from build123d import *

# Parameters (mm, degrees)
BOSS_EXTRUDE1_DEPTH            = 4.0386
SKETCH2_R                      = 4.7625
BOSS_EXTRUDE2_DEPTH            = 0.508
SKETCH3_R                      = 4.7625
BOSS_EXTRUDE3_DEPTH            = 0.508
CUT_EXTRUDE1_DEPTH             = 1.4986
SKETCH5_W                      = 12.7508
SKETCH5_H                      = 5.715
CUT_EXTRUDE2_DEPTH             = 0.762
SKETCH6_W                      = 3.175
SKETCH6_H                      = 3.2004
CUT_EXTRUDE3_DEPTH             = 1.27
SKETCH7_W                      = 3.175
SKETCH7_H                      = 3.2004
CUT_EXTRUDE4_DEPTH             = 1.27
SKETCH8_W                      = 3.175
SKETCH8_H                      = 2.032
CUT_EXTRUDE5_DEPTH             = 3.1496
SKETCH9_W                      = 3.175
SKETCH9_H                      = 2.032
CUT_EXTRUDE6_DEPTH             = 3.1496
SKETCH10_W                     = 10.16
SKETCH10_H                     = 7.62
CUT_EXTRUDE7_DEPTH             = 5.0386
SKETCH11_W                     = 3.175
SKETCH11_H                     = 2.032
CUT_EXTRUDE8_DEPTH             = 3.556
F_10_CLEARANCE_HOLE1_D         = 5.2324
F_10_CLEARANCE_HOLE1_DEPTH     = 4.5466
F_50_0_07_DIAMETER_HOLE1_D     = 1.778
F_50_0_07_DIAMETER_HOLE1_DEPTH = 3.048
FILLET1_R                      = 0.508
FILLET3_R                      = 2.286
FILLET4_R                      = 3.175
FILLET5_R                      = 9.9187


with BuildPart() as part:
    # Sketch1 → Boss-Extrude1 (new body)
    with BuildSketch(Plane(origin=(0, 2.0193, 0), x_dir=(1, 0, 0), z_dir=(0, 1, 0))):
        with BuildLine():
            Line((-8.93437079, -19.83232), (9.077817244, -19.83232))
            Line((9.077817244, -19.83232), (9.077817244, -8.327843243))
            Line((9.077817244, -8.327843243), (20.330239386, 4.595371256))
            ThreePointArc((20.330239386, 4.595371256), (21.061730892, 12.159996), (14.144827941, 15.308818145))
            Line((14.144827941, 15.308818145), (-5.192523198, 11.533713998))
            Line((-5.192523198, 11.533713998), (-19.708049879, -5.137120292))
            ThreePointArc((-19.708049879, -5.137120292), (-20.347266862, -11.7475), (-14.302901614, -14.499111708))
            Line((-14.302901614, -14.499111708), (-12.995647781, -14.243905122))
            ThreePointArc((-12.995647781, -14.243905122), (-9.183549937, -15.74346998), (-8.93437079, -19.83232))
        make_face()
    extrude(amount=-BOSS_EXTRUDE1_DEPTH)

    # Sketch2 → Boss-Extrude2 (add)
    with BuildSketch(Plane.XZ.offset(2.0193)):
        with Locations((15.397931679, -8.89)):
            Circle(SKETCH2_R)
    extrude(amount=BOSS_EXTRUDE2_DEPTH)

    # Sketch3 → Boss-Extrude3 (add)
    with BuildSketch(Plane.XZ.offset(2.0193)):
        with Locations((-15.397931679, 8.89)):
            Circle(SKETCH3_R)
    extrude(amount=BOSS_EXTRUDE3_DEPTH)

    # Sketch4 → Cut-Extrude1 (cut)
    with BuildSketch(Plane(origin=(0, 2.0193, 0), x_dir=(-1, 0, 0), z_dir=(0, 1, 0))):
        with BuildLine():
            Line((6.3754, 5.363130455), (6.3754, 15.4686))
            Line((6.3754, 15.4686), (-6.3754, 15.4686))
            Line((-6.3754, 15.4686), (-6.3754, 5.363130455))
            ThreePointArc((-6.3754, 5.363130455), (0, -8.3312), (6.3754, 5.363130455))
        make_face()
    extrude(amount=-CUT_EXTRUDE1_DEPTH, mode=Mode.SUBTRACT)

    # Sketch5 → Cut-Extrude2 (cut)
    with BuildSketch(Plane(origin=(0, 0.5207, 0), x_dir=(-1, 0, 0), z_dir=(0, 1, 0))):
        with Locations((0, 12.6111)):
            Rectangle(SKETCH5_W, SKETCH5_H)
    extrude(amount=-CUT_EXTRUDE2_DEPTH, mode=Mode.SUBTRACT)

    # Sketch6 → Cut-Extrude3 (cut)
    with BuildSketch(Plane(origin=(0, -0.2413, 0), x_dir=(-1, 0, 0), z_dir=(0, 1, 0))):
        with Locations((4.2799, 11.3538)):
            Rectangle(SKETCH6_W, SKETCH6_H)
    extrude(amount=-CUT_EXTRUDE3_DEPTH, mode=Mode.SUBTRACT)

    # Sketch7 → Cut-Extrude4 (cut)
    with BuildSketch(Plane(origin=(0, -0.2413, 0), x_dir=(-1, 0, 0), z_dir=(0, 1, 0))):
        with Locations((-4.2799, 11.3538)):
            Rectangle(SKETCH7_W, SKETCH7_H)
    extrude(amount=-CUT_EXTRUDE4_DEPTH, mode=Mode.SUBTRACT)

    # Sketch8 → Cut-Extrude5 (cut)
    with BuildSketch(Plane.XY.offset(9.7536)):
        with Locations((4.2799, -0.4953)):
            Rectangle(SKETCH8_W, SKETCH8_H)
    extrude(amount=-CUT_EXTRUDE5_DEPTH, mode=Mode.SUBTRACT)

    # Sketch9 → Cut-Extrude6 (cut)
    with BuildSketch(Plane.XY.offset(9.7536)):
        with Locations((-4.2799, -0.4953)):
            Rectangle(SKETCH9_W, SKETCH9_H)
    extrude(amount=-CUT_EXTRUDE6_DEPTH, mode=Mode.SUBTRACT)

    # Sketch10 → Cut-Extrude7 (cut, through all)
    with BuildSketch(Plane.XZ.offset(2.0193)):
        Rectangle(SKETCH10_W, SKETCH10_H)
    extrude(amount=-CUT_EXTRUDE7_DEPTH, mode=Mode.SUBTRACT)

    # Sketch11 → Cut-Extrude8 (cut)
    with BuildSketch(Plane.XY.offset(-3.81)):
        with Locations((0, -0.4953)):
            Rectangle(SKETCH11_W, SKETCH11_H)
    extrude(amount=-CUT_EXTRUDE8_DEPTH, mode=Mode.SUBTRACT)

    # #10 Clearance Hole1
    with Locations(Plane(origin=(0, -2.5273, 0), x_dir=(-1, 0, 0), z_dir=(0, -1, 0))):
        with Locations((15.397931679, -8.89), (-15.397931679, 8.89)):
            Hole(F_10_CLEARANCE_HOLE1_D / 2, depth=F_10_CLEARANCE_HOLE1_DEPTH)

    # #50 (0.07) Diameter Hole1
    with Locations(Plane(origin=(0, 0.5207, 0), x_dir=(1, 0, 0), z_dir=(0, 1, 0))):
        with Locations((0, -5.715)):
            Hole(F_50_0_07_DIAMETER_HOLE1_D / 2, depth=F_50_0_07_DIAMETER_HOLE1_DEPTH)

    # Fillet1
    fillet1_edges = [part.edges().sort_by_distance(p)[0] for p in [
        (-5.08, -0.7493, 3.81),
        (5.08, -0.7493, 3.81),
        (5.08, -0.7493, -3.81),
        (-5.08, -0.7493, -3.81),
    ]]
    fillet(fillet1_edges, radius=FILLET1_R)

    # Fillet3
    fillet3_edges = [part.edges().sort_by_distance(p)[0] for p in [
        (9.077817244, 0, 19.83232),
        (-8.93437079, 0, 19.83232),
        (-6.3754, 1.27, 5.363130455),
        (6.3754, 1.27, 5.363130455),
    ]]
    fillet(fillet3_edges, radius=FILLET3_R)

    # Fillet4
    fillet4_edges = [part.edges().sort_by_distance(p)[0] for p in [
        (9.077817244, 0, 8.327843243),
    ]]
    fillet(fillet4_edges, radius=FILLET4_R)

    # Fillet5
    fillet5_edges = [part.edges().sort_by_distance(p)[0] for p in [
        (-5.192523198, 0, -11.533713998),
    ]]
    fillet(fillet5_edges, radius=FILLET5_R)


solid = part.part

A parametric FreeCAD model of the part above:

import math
import FreeCAD as App
import Part
import Sketcher
Q = App.Units.Quantity


def edges_at(feature, points):
    """Names of the edges that pass closest to the given points."""
    edges = feature.Shape.Edges
    near = lambda p: min(range(len(edges)), key=lambda i: edges[i].distToShape(Part.Vertex(*p))[0])
    return sorted({f"Edge{near(p) + 1}" for p in points})


def add_polygon(sketch, points):
    """Adds a closed chain of lines whose ends are joined by coincident constraints."""
    first, n = sketch.GeometryCount, len(points)
    for a, b in zip(points, points[1:] + points[:1]):
        sketch.addGeometry(Part.LineSegment(App.Vector(*a, 0), App.Vector(*b, 0)), False)
    for i in range(n):
        sketch.addConstraint(Sketcher.Constraint("Coincident", first + i, 2, first + (i + 1) % n, 1))

doc = App.newDocument("Part")
body = doc.addObject("PartDesign::Body", "Body")

sketch1 = doc.addObject("Sketcher::SketchObject", "Sketch")
body.addObject(sketch1)
sketch1.AttachmentSupport = (doc.XZ_Plane, [""])
sketch1.MapMode = "FlatFace"
sketch1.AttachmentOffset = App.Placement(App.Vector(0, 0, -0.0795 * 25.4), App.Rotation())
sketch1.addGeometry([
    Part.LineSegment(App.Vector(-8.9, 19.8, 0), App.Vector(9.1, 19.8, 0)),
    Part.LineSegment(App.Vector(9.1, 19.8, 0), App.Vector(9.1, 8.3, 0)),
    Part.LineSegment(App.Vector(9.1, 8.3, 0), App.Vector(20.3, -4.6, 0)),
    Part.ArcOfCircle(Part.Circle(App.Vector(15.4, -8.9, 0), App.Vector(0, 0, 1), 6.5), math.radians(-101), math.radians(41)),
    Part.LineSegment(App.Vector(14.1, -15.3, 0), App.Vector(-5.2, -11.5, 0)),
    Part.LineSegment(App.Vector(-5.2, -11.5, 0), App.Vector(-19.7, 5.1, 0)),
    Part.ArcOfCircle(Part.Circle(App.Vector(-15.4, 8.9, 0), App.Vector(0, 0, 1), 5.7), math.radians(79), math.radians(221)),
    Part.LineSegment(App.Vector(-14.3, 14.5, 0), App.Vector(-13, 14.2, 0)),
    Part.ArcOfCircle(Part.Circle(App.Vector(-12.3, 18, 0), App.Vector(0, 0, 1), 3.8), math.radians(-101), math.radians(29)),
], False)
sketch1.addConstraint([
    Sketcher.Constraint("Coincident", 0, 2, 1, 1),
    Sketcher.Constraint("Coincident", 1, 2, 2, 1),
    Sketcher.Constraint("Tangent", 2, 2, 3, 2),
    Sketcher.Constraint("Tangent", 3, 1, 4, 1),
    Sketcher.Constraint("Coincident", 4, 2, 5, 1),
    Sketcher.Constraint("Tangent", 5, 2, 6, 2),
    Sketcher.Constraint("Tangent", 6, 1, 7, 1),
    Sketcher.Constraint("Tangent", 7, 2, 8, 1),
    Sketcher.Constraint("Coincident", 8, 2, 0, 1),
    Sketcher.Constraint("Horizontal", 0),
    Sketcher.Constraint("Vertical", 1),
    Sketcher.Constraint("Symmetric", 3, 3, 6, 3, -1, 1),
    Sketcher.Constraint("Parallel", 2, 5),
    Sketcher.Constraint("Parallel", 4, 7),
    Sketcher.Constraint("Radius", 8, Q("0.15 in")),
    Sketcher.Constraint("Radius", 6, Q("0.225 in")),
    Sketcher.Constraint("DistanceY", 3, 3, 6, 3, Q("0.7 in")),
    Sketcher.Constraint("Radius", 3, 6.539992),
    Sketcher.Constraint("DistanceY", -1, 1, 0, 2, Q("0.7808 in")),
    Sketcher.Constraint("Distance", 4, 19.7024),
    Sketcher.Constraint("DistanceX", 0, 1, 0, 2, 18.012188),
    Sketcher.Constraint("DistanceX", 6, 1, -1, 1, 14.302902),
    Sketcher.Constraint("DistanceY", 5, 2, 0, 2, 14.6952),
    Sketcher.Constraint("DistanceY", 6, 1, 8, 3, 3.484201),
])
pad1 = doc.addObject("PartDesign::Pad", "Pad")
body.addObject(pad1)
pad1.Profile = sketch1
pad1.Length = Q("0.159 in")

sketch2 = doc.addObject("Sketcher::SketchObject", "Sketch001")
body.addObject(sketch2)
sketch2.AttachmentSupport = (doc.XZ_Plane, [""])
sketch2.MapMode = "FlatFace"
sketch2.AttachmentOffset = App.Placement(App.Vector(0, 0, 0.0795 * 25.4), App.Rotation())
sketch2.addGeometry(Part.Circle(App.Vector(15.4, -8.9, 0), App.Vector(0, 0, 1), 4.8), False)
sketch2.addConstraint([
    Sketcher.Constraint("Diameter", 0, Q("0.375 in")),
    Sketcher.Constraint("DistanceY", 0, 3, -1, 1, Q("0.35 in")),
    Sketcher.Constraint("DistanceX", -1, 1, 0, 3, 15.397932),
])
pad2 = doc.addObject("PartDesign::Pad", "Pad001")
body.addObject(pad2)
pad2.Profile = sketch2
pad2.Length = Q("0.02 in")

sketch3 = doc.addObject("Sketcher::SketchObject", "Sketch002")
body.addObject(sketch3)
sketch3.AttachmentSupport = (doc.XZ_Plane, [""])
sketch3.MapMode = "FlatFace"
sketch3.AttachmentOffset = App.Placement(App.Vector(0, 0, 0.0795 * 25.4), App.Rotation())
sketch3.addGeometry(Part.Circle(App.Vector(-15.4, 8.9, 0), App.Vector(0, 0, 1), 4.8), False)
sketch3.addConstraint([
    Sketcher.Constraint("Diameter", 0, Q("0.375 in")),
    Sketcher.Constraint("DistanceY", -1, 1, 0, 3, Q("0.35 in")),
    Sketcher.Constraint("DistanceX", 0, 3, -1, 1, 15.397932),
])
pad3 = doc.addObject("PartDesign::Pad", "Pad002")
body.addObject(pad3)
pad3.Profile = sketch3
pad3.Length = Q("0.02 in")

sketch4 = doc.addObject("Sketcher::SketchObject", "Sketch003")
body.addObject(sketch4)
sketch4.AttachmentSupport = (doc.XZ_Plane, [""])
sketch4.MapMode = "FlatFace"
sketch4.AttachmentOffset = App.Placement(App.Vector(0, 0, -0.0795 * 25.4), App.Rotation())
sketch4.addGeometry([
    Part.LineSegment(App.Vector(-6, 5, 0), App.Vector(-6, 15, 0)),
    Part.LineSegment(App.Vector(-6, 15, 0), App.Vector(6, 15, 0)),
    Part.LineSegment(App.Vector(6, 15, 0), App.Vector(6, 5, 0)),
    Part.ArcOfCircle(Part.Circle(App.Vector(0, 0, 0), App.Vector(0, 0, 1), 8), math.radians(140), math.radians(400)),
], False)
sketch4.addConstraint([
    Sketcher.Constraint("Coincident", 0, 2, 1, 1),
    Sketcher.Constraint("Coincident", 1, 2, 2, 1),
    Sketcher.Constraint("Coincident", 2, 2, 3, 2),
    Sketcher.Constraint("Coincident", 3, 1, 0, 1),
    Sketcher.Constraint("Vertical", 0),
    Sketcher.Constraint("Horizontal", 1),
    Sketcher.Constraint("Vertical", 2),
    Sketcher.Constraint("Coincident", 3, 3, -1, 1),
    Sketcher.Constraint("Horizontal", 2, 2, 3, 1),
    Sketcher.Constraint("Radius", 3, Q("0.328 in")),
    Sketcher.Constraint("DistanceX", 1, 1, 1, 2, Q("0.502 in")),
    Sketcher.Constraint("DistanceY", -1, 1, 0, 2, Q("0.609 in")),
])
pocket1 = doc.addObject("PartDesign::Pocket", "Pocket")
body.addObject(pocket1)
pocket1.Profile = sketch4
pocket1.Length = Q("0.059 in")
pocket1.Reversed = True

sketch5 = doc.addObject("Sketcher::SketchObject", "Sketch004")
body.addObject(sketch5)
sketch5.AttachmentSupport = (doc.XZ_Plane, [""])
sketch5.MapMode = "FlatFace"
sketch5.AttachmentOffset = App.Placement(App.Vector(0, 0, -0.0205 * 25.4), App.Rotation())
add_polygon(sketch5, [(6, 15), (6, 10), (-6, 10), (-6, 15)])
sketch5.addConstraint([
    Sketcher.Constraint("Vertical", 0),
    Sketcher.Constraint("Horizontal", 1),
    Sketcher.Constraint("Vertical", 2),
    Sketcher.Constraint("Horizontal", 3),
    Sketcher.Constraint("DistanceX", 1, 2, 1, 1, Q("0.502 in")),
    Sketcher.Constraint("DistanceY", 0, 2, 0, 1, Q("0.225 in")),
    Sketcher.Constraint("DistanceX", -1, 1, 0, 2, Q("0.251 in")),
    Sketcher.Constraint("DistanceY", -1, 1, 0, 2, Q("0.384 in")),
])
pocket2 = doc.addObject("PartDesign::Pocket", "Pocket001")
body.addObject(pocket2)
pocket2.Profile = sketch5
pocket2.Length = Q("0.03 in")
pocket2.Reversed = True

sketch6 = doc.addObject("Sketcher::SketchObject", "Sketch005")
body.addObject(sketch6)
sketch6.AttachmentSupport = (doc.XZ_Plane, [""])
sketch6.MapMode = "FlatFace"
sketch6.AttachmentOffset = App.Placement(App.Vector(0, 0, 0.0095 * 25.4), App.Rotation())
add_polygon(sketch6, [(-2.7, 13), (-2.7, 9.8), (-5.9, 9.8), (-5.9, 13)])
sketch6.addConstraint([
    Sketcher.Constraint("Vertical", 0),
    Sketcher.Constraint("Horizontal", 1),
    Sketcher.Constraint("Vertical", 2),
    Sketcher.Constraint("Horizontal", 3),
    Sketcher.Constraint("DistanceX", 1, 2, 1, 1, Q("0.125 in")),
    Sketcher.Constraint("DistanceY", 0, 2, 0, 1, Q("0.126 in")),
    Sketcher.Constraint("DistanceY", -1, 1, 2, 2, Q("0.51 in")),
    Sketcher.Constraint("DistanceX", 0, 2, -1, 1, Q("0.106 in")),
])
pocket3 = doc.addObject("PartDesign::Pocket", "Pocket002")
body.addObject(pocket3)
pocket3.Profile = sketch6
pocket3.Length = Q("0.05 in")
pocket3.Reversed = True

sketch7 = doc.addObject("Sketcher::SketchObject", "Sketch006")
body.addObject(sketch7)
sketch7.AttachmentSupport = (doc.XZ_Plane, [""])
sketch7.MapMode = "FlatFace"
sketch7.AttachmentOffset = App.Placement(App.Vector(0, 0, 0.0095 * 25.4), App.Rotation())
add_polygon(sketch7, [(5.9, 13), (5.9, 9.8), (2.7, 9.8), (2.7, 13)])
sketch7.addConstraint([
    Sketcher.Constraint("Vertical", 0),
    Sketcher.Constraint("Horizontal", 1),
    Sketcher.Constraint("Vertical", 2),
    Sketcher.Constraint("Horizontal", 3),
    Sketcher.Constraint("DistanceX", 1, 2, 1, 1, Q("0.125 in")),
    Sketcher.Constraint("DistanceY", 0, 2, 0, 1, Q("0.126 in")),
    Sketcher.Constraint("DistanceY", -1, 1, 2, 2, Q("0.51 in")),
    Sketcher.Constraint("DistanceX", -1, 1, 0, 2, Q("0.231 in")),
])
pocket4 = doc.addObject("PartDesign::Pocket", "Pocket003")
body.addObject(pocket4)
pocket4.Profile = sketch7
pocket4.Length = Q("0.05 in")
pocket4.Reversed = True

sketch8 = doc.addObject("Sketcher::SketchObject", "Sketch007")
body.addObject(sketch8)
sketch8.AttachmentSupport = (doc.XY_Plane, [""])
sketch8.MapMode = "FlatFace"
sketch8.AttachmentOffset = App.Placement(App.Vector(0, 0, 0.384 * 25.4), App.Rotation())
add_polygon(sketch8, [(2.7, 0.5), (2.7, -1.5), (5.9, -1.5), (5.9, 0.5)])
sketch8.addConstraint([
    Sketcher.Constraint("Vertical", 0),
    Sketcher.Constraint("Horizontal", 1),
    Sketcher.Constraint("Vertical", 2),
    Sketcher.Constraint("Horizontal", 3),
    Sketcher.Constraint("DistanceY", 0, 2, 0, 1, Q("0.08 in")),
    Sketcher.Constraint("DistanceX", 1, 1, 1, 2, Q("0.125 in")),
    Sketcher.Constraint("DistanceX", -1, 1, 0, 2, Q("0.106 in")),
    Sketcher.Constraint("DistanceY", 0, 2, -1, 1, Q("0.0595 in")),
])
pocket5 = doc.addObject("PartDesign::Pocket", "Pocket004")
body.addObject(pocket5)
pocket5.Profile = sketch8
pocket5.Length = Q("0.124 in")

sketch9 = doc.addObject("Sketcher::SketchObject", "Sketch008")
body.addObject(sketch9)
sketch9.AttachmentSupport = (doc.XY_Plane, [""])
sketch9.MapMode = "FlatFace"
sketch9.AttachmentOffset = App.Placement(App.Vector(0, 0, 0.384 * 25.4), App.Rotation())
add_polygon(sketch9, [(-5.9, 0.5), (-5.9, -1.5), (-2.7, -1.5), (-2.7, 0.5)])
sketch9.addConstraint([
    Sketcher.Constraint("Vertical", 0),
    Sketcher.Constraint("Horizontal", 1),
    Sketcher.Constraint("Vertical", 2),
    Sketcher.Constraint("Horizontal", 3),
    Sketcher.Constraint("DistanceY", 0, 2, 0, 1, Q("0.08 in")),
    Sketcher.Constraint("DistanceX", 1, 1, 1, 2, Q("0.125 in")),
    Sketcher.Constraint("DistanceX", 0, 2, -1, 1, Q("0.231 in")),
    Sketcher.Constraint("DistanceY", 0, 2, -1, 1, Q("0.0595 in")),
])
pocket6 = doc.addObject("PartDesign::Pocket", "Pocket005")
body.addObject(pocket6)
pocket6.Profile = sketch9
pocket6.Length = Q("0.124 in")

sketch10 = doc.addObject("Sketcher::SketchObject", "Sketch009")
body.addObject(sketch10)
sketch10.AttachmentSupport = (doc.XZ_Plane, [""])
sketch10.MapMode = "FlatFace"
sketch10.AttachmentOffset = App.Placement(App.Vector(0, 0, 0.0795 * 25.4), App.Rotation())
add_polygon(sketch10, [(-5, 4), (-5, -4), (5, -4), (5, 4)])
sketch10.addConstraint([
    Sketcher.Constraint("Vertical", 0),
    Sketcher.Constraint("Horizontal", 1),
    Sketcher.Constraint("Vertical", 2),
    Sketcher.Constraint("Horizontal", 3),
    Sketcher.Constraint("Symmetric", 0, 2, 2, 2, -1, 1),
    Sketcher.Constraint("DistanceX", 1, 1, 1, 2, Q("0.4 in")),
    Sketcher.Constraint("DistanceY", 0, 2, 0, 1, Q("0.3 in")),
])
pocket7 = doc.addObject("PartDesign::Pocket", "Pocket006")
body.addObject(pocket7)
pocket7.Profile = sketch10
pocket7.Type = "ThroughAll"

sketch11 = doc.addObject("Sketcher::SketchObject", "Sketch010")
body.addObject(sketch11)
sketch11.AttachmentSupport = (doc.XY_Plane, [""])
sketch11.MapMode = "FlatFace"
sketch11.AttachmentOffset = App.Placement(App.Vector(0, 0, -0.15 * 25.4), App.Rotation())
add_polygon(sketch11, [(-1.6, 0.5), (-1.6, -1.5), (1.6, -1.5), (1.6, 0.5)])
sketch11.addConstraint([
    Sketcher.Constraint("Vertical", 0),
    Sketcher.Constraint("Horizontal", 1),
    Sketcher.Constraint("Vertical", 2),
    Sketcher.Constraint("Horizontal", 3),
    Sketcher.Constraint("DistanceY", 0, 2, 0, 1, Q("0.08 in")),
    Sketcher.Constraint("DistanceX", 1, 1, 1, 2, Q("0.125 in")),
    Sketcher.Constraint("DistanceX", 0, 2, -1, 1, Q("0.0625 in")),
    Sketcher.Constraint("DistanceY", 0, 2, -1, 1, Q("0.0595 in")),
])
pocket8 = doc.addObject("PartDesign::Pocket", "Pocket007")
body.addObject(pocket8)
pocket8.Profile = sketch11
pocket8.Length = Q("0.14 in")

sketch12 = doc.addObject("Sketcher::SketchObject", "Sketch011")
body.addObject(sketch12)
sketch12.AttachmentSupport = (doc.XZ_Plane, [""])
sketch12.MapMode = "FlatFace"
sketch12.AttachmentOffset = App.Placement(App.Vector(0, 0, 0.0995 * 25.4), App.Rotation())
sketch12.addGeometry([
    Part.Circle(App.Vector(-15.4, 8.9, 0), App.Vector(0, 0, 1), 2.6),
    Part.Circle(App.Vector(15.4, -8.9, 0), App.Vector(0, 0, 1), 2.6),
], False)
sketch12.addConstraint([
    Sketcher.Constraint("Equal", 0, 1),
    Sketcher.Constraint("Symmetric", 0, 3, 1, 3, -1, 1),
    Sketcher.Constraint("Diameter", 0, Q("0.206 in")),
    Sketcher.Constraint("DistanceY", 1, 3, 0, 3, Q("0.7 in")),
    Sketcher.Constraint("DistanceX", 0, 3, -1, 1, 15.397932),
])
doc.recompute()
hole = doc.addObject("PartDesign::Hole", "Hole")
body.addObject(hole)
hole.Profile = sketch12
hole.ThreadType = "None"
hole.Diameter = Q("0.206 in")
hole.DepthType = "Dimension"
hole.Depth = Q("0.179 in")
hole.DrillPoint = "Flat"

sketch13 = doc.addObject("Sketcher::SketchObject", "Sketch012")
body.addObject(sketch13)
sketch13.AttachmentSupport = (doc.XZ_Plane, [""])
sketch13.MapMode = "FlatFace"
sketch13.AttachmentOffset = App.Placement(App.Vector(0, 0, -0.0205 * 25.4), App.Rotation())
sketch13.addGeometry(Part.Circle(App.Vector(0, 5.7, 0), App.Vector(0, 0, 1), 0.9), False)
sketch13.addConstraint([
    Sketcher.Constraint("PointOnObject", 0, 3, -2),
    Sketcher.Constraint("Diameter", 0, Q("0.07 in")),
    Sketcher.Constraint("DistanceY", -1, 1, 0, 3, Q("0.225 in")),
])
doc.recompute()
hole2 = doc.addObject("PartDesign::Hole", "Hole001")
body.addObject(hole2)
hole2.Profile = sketch13
hole2.ThreadType = "None"
hole2.Diameter = Q("0.07 in")
hole2.DepthType = "Dimension"
hole2.Depth = Q("0.12 in")
hole2.DrillPoint = "Flat"
hole2.Reversed = True
doc.recompute()

fillet = doc.addObject("PartDesign::Fillet", "Fillet")
body.addObject(fillet)
fillet.Base = (hole2, edges_at(hole2, [
    (-5.08, -0.749, 3.81),
    (5.08, -0.749, 3.81),
    (5.08, -0.749, -3.81),
    (-5.08, -0.749, -3.81),
]))
fillet.Radius = Q("0.02 in")
doc.recompute()

fillet2 = doc.addObject("PartDesign::Fillet", "Fillet001")
body.addObject(fillet2)
fillet2.Base = (fillet, edges_at(fillet, [
    (9.078, 0, 19.832),
    (-8.934, 0, 19.832),
    (-6.375, 1.27, 5.363),
    (6.375, 1.27, 5.363),
]))
fillet2.Radius = Q("0.09 in")
doc.recompute()

fillet3 = doc.addObject("PartDesign::Fillet", "Fillet002")
body.addObject(fillet3)
fillet3.Base = (fillet2, edges_at(fillet2, [(9.078, 0, 8.328)]))
fillet3.Radius = Q("0.125 in")
doc.recompute()

fillet4 = doc.addObject("PartDesign::Fillet", "Fillet003")
body.addObject(fillet4)
fillet4.Base = (fillet3, edges_at(fillet3, [(-5.193, 0, -11.534)]))
fillet4.Radius = Q("0.3905 in")

doc.recompute()
